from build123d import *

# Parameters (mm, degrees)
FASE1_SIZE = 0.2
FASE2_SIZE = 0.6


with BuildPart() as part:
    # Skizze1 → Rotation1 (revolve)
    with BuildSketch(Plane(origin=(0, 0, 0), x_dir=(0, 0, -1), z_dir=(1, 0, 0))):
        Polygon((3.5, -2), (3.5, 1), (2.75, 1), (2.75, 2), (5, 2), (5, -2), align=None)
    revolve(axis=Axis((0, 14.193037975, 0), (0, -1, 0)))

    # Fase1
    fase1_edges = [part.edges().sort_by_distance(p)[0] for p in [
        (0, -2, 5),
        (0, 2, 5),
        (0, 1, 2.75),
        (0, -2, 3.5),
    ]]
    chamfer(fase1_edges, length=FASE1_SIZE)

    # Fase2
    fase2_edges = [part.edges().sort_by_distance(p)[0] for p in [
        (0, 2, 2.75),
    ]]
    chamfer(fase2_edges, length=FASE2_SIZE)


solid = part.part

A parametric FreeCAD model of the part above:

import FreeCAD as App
import Part
import Sketcher

V = App.Vector


def edges_at(feature, points):
    """Names of the edges that pass closest to the given points."""
    edges = feature.Shape.Edges
    near = lambda p: min(range(len(edges)), key=lambda i: edges[i].distToShape(Part.Vertex(*p))[0])
    return sorted({f"Edge{near(p) + 1}" for p in points})


def add_polygon(sketch, points):
    """Adds a closed chain of lines whose ends are joined by coincident constraints."""
    first, n = sketch.GeometryCount, len(points)
    for a, b in zip(points, points[1:] + points[:1]):
        sketch.addGeometry(Part.LineSegment(App.Vector(*a, 0), App.Vector(*b, 0)), False)
    for i in range(n):
        sketch.addConstraint(Sketcher.Constraint("Coincident", first + i, 2, first + (i + 1) % n, 1))

doc = App.newDocument("Part")
body = doc.addObject("PartDesign::Body", "Body")

sketch1 = doc.addObject("Sketcher::SketchObject", "Sketch")
body.addObject(sketch1)
sketch1.AttachmentSupport = (doc.YZ_Plane, [""])
sketch1.MapMode = "FlatFace"
add_polygon(sketch1, [(1, -3.5), (-2, -3.5), (-2, -5), (2, -5), (2, -2.8), (1, -2.8)])
sketch1.addConstraint([
    Sketcher.Constraint("Horizontal", 0),
    Sketcher.Constraint("Vertical", 1),
    Sketcher.Constraint("Horizontal", 2),
    Sketcher.Constraint("Vertical", 3),
    Sketcher.Constraint("Horizontal", 4),
    Sketcher.Constraint("Vertical", 5),
    Sketcher.Constraint("DistanceX", 0, 2, 0, 1, 3.0),
    Sketcher.Constraint("DistanceX", 2, 1, 2, 2, 4.0),
    Sketcher.Constraint("DistanceY", 1, 2, 1, 1, 1.5),
    Sketcher.Constraint("DistanceX", 0, 2, -1, 1, 2.0),
    Sketcher.Constraint("DistanceY", 1, 2, -1, 1, 5.0),
    Sketcher.Constraint("DistanceY", 3, 1, 3, 2, 2.25),
])
revolution = doc.addObject("PartDesign::Revolution", "Revolution")
body.addObject(revolution)
revolution.Profile = sketch1
revolution.ReferenceAxis = (sketch1, ["H_Axis"])
revolution.Angle = 360
doc.recompute()

chamfer = doc.addObject("PartDesign::Chamfer", "Chamfer")
body.addObject(chamfer)
chamfer.Base = (revolution, edges_at(revolution, [
    (0, -2, 5),
    (0, 2, 5),
    (0, 1, 2.75),
    (0, -2, 3.5),
]))
chamfer.Size = 0.2
doc.recompute()

chamfer2 = doc.addObject("PartDesign::Chamfer", "Chamfer001")
body.addObject(chamfer2)
chamfer2.Base = (chamfer, edges_at(chamfer, [(0, 2, 2.75)]))
chamfer2.Size = 0.6

doc.recompute()
